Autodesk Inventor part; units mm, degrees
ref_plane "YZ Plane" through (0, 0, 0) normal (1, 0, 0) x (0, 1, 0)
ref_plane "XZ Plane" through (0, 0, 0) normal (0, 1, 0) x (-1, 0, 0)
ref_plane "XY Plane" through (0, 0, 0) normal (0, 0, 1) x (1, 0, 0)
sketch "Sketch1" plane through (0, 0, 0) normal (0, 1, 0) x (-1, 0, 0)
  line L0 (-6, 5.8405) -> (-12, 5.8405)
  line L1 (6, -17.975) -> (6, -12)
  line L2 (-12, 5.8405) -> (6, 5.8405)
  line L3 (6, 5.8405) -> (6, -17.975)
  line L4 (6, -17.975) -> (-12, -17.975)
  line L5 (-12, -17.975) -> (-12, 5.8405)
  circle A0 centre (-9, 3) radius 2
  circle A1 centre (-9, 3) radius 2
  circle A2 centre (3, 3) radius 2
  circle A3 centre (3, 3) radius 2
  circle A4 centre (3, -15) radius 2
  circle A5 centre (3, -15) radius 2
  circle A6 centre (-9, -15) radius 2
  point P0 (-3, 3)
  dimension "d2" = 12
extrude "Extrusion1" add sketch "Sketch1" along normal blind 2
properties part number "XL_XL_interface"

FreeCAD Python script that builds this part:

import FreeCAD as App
import Part
import Sketcher
from FreeCAD import Vector

doc = App.newDocument("Part")
body = doc.addObject("PartDesign::Body", "Body")

sketch1 = body.newObject("Sketcher::SketchObject", "Sketch")
sketch1.AttachmentSupport = (doc.getObject("XZ_Plane"), [""])
sketch1.MapMode = "FlatFace"
sketch1.addGeometry(Part.LineSegment(Vector(-6, 5.8, 0), Vector(12, 5.8, 0)), False)
sketch1.addGeometry(Part.LineSegment(Vector(12, 5.8, 0), Vector(12, -18, 0)), False)
sketch1.addGeometry(Part.LineSegment(Vector(12, -18, 0), Vector(-6, -18, 0)), False)
sketch1.addGeometry(Part.LineSegment(Vector(-6, -18, 0), Vector(-6, 5.8, 0)), False)
sketch1.addGeometry(Part.Circle(Vector(9, -15, 0), Vector(0, 0, 1), 2), False)
sketch1.addGeometry(Part.Circle(Vector(-3, -15, 0), Vector(0, 0, 1), 2), False)
sketch1.addGeometry(Part.Circle(Vector(9, 3, 0), Vector(0, 0, 1), 2), False)
sketch1.addGeometry(Part.Circle(Vector(-3, 3, 0), Vector(0, 0, 1), 2), False)
sketch1.addConstraint(Sketcher.Constraint("Coincident", 0, 2, 1, 1))
sketch1.addConstraint(Sketcher.Constraint("Coincident", 1, 2, 2, 1))
sketch1.addConstraint(Sketcher.Constraint("Coincident", 2, 2, 3, 1))
sketch1.addConstraint(Sketcher.Constraint("Coincident", 3, 2, 0, 1))
sketch1.addConstraint(Sketcher.Constraint("Horizontal", 0))
sketch1.addConstraint(Sketcher.Constraint("Vertical", 1))
sketch1.addConstraint(Sketcher.Constraint("Horizontal", 2))
sketch1.addConstraint(Sketcher.Constraint("Vertical", 3))
sketch1.addConstraint(Sketcher.Constraint("Equal", 4, 5))
sketch1.addConstraint(Sketcher.Constraint("Equal", 5, 6))
sketch1.addConstraint(Sketcher.Constraint("Equal", 6, 7))
sketch1.addConstraint(Sketcher.Constraint("Horizontal", 4, 3, 5, 3))
sketch1.addConstraint(Sketcher.Constraint("Horizontal", 6, 3, 7, 3))
sketch1.addConstraint(Sketcher.Constraint("Vertical", 4, 3, 6, 3))
sketch1.addConstraint(Sketcher.Constraint("Vertical", 5, 3, 7, 3))
sketch1.addConstraint(Sketcher.Constraint("Diameter", 4, 4.0))
sketch1.addConstraint(Sketcher.Constraint("DistanceX", -1, 1, 0, 2, 12.0))
sketch1.addConstraint(Sketcher.Constraint("DistanceX", 5, 3, 4, 3, 12.0))
sketch1.addConstraint(Sketcher.Constraint("DistanceX", 0, 1, 0, 2, 18.0))
sketch1.addConstraint(Sketcher.Constraint("DistanceX", -1, 1, 4, 3, 9.0))
sketch1.addConstraint(Sketcher.Constraint("DistanceY", 4, 3, -1, 1, 15.0))
sketch1.addConstraint(Sketcher.Constraint("DistanceY", -1, 1, 6, 3, 3.0))
sketch1.addConstraint(Sketcher.Constraint("DistanceY", 1, 2, 1, 1, 23.8155))
sketch1.addConstraint(Sketcher.Constraint("DistanceY", 1, 2, -1, 1, 17.975))
pad1 = body.newObject("PartDesign::Pad", "Pad")
pad1.Profile = sketch1
pad1.Length = 2
pad1.Reversed = True

doc.recompute()
